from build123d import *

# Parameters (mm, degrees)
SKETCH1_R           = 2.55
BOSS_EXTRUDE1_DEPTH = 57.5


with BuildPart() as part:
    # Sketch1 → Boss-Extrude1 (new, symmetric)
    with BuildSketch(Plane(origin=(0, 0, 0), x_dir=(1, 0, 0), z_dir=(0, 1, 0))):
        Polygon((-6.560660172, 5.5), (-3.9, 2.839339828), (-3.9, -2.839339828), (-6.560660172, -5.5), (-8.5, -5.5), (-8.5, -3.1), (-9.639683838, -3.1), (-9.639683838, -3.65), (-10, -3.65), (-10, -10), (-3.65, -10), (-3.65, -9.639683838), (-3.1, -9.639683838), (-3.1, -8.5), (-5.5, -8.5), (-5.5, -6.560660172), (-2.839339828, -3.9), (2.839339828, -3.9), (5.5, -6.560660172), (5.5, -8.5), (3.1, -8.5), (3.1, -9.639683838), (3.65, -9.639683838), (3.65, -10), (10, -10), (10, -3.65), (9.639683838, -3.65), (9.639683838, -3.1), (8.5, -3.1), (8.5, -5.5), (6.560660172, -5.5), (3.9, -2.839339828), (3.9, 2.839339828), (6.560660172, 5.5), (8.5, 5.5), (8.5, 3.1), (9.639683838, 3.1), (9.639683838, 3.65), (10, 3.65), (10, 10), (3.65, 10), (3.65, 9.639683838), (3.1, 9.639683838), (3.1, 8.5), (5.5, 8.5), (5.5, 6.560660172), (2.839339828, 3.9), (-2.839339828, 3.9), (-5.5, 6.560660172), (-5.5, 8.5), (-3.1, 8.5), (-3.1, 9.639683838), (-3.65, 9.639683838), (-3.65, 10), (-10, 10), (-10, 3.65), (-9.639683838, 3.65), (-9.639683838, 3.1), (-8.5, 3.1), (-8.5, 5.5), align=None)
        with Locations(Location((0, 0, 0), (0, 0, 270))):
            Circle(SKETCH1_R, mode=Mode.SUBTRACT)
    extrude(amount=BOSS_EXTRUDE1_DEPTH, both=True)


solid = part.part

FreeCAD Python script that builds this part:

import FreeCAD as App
import Part
import Sketcher

doc = App.newDocument("Part")
params = doc.addObject("Spreadsheet::Sheet", "Params")
for row, (alias, value) in enumerate([
    ("sketch1_diameter", "5.1 mm"),
    ("sketch1_width", "2.4 mm"),
    ("sketch1_width2", "6.35 mm"),
    ("sketch1_width3", "0.55 mm"),
    ("pad1_length", "115 mm"),
], start=1):
    params.set(f"A{row}", alias)
    params.set(f"B{row}", "=" + value)
    params.setAlias(f"B{row}", alias)

body = doc.addObject("PartDesign::Body", "Body")

# Sketch on XZ plane
sketch1 = doc.addObject("Sketcher::SketchObject", "Sketch")
body.addObject(sketch1)
sketch1.AttachmentSupport = (doc.XZ_Plane, [""])
sketch1.MapMode = "FlatFace"
sketch1.addGeometry([
    Part.LineSegment(App.Vector(-6.56, -5.5, 0), App.Vector(-3.9, -2.84, 0)),  # 0
    Part.LineSegment(App.Vector(-3.9, -2.84, 0), App.Vector(-3.9, 2.84, 0)),  # 1
    Part.LineSegment(App.Vector(-3.9, 2.84, 0), App.Vector(-6.56, 5.5, 0)),  # 2
    Part.LineSegment(App.Vector(-6.56, 5.5, 0), App.Vector(-8.5, 5.5, 0)),  # 3
    Part.LineSegment(App.Vector(-8.5, 5.5, 0), App.Vector(-8.5, 3.1, 0)),  # 4
    Part.LineSegment(App.Vector(-8.5, 3.1, 0), App.Vector(-9.64, 3.1, 0)),  # 5
    Part.LineSegment(App.Vector(-9.64, 3.1, 0), App.Vector(-9.64, 3.65, 0)),  # 6
    Part.LineSegment(App.Vector(-9.64, 3.65, 0), App.Vector(-10, 3.65, 0)),  # 7
    Part.LineSegment(App.Vector(-10, 3.65, 0), App.Vector(-10, 10, 0)),  # 8
    Part.LineSegment(App.Vector(-10, 10, 0), App.Vector(-3.65, 10, 0)),  # 9
    Part.LineSegment(App.Vector(-3.65, 10, 0), App.Vector(-3.65, 9.64, 0)),  # 10
    Part.LineSegment(App.Vector(-3.65, 9.64, 0), App.Vector(-3.1, 9.64, 0)),  # 11
    Part.LineSegment(App.Vector(-3.1, 9.64, 0), App.Vector(-3.1, 8.5, 0)),  # 12
    Part.LineSegment(App.Vector(-3.1, 8.5, 0), App.Vector(-5.5, 8.5, 0)),  # 13
    Part.LineSegment(App.Vector(-5.5, 8.5, 0), App.Vector(-5.5, 6.56, 0)),  # 14
    Part.LineSegment(App.Vector(-5.5, 6.56, 0), App.Vector(-2.84, 3.9, 0)),  # 15
    Part.LineSegment(App.Vector(-2.84, 3.9, 0), App.Vector(2.84, 3.9, 0)),  # 16
    Part.LineSegment(App.Vector(2.84, 3.9, 0), App.Vector(5.5, 6.56, 0)),  # 17
    Part.LineSegment(App.Vector(5.5, 6.56, 0), App.Vector(5.5, 8.5, 0)),  # 18
    Part.LineSegment(App.Vector(5.5, 8.5, 0), App.Vector(3.1, 8.5, 0)),  # 19
    Part.LineSegment(App.Vector(3.1, 8.5, 0), App.Vector(3.1, 9.64, 0)),  # 20
    Part.LineSegment(App.Vector(3.1, 9.64, 0), App.Vector(3.65, 9.64, 0)),  # 21
    Part.LineSegment(App.Vector(3.65, 9.64, 0), App.Vector(3.65, 10, 0)),  # 22
    Part.LineSegment(App.Vector(3.65, 10, 0), App.Vector(10, 10, 0)),  # 23
    Part.LineSegment(App.Vector(10, 10, 0), App.Vector(10, 3.65, 0)),  # 24
    Part.LineSegment(App.Vector(10, 3.65, 0), App.Vector(9.64, 3.65, 0)),  # 25
    Part.LineSegment(App.Vector(9.64, 3.65, 0), App.Vector(9.64, 3.1, 0)),  # 26
    Part.LineSegment(App.Vector(9.64, 3.1, 0), App.Vector(8.5, 3.1, 0)),  # 27
    Part.LineSegment(App.Vector(8.5, 3.1, 0), App.Vector(8.5, 5.5, 0)),  # 28
    Part.LineSegment(App.Vector(8.5, 5.5, 0), App.Vector(6.56, 5.5, 0)),  # 29
    Part.LineSegment(App.Vector(6.56, 5.5, 0), App.Vector(3.9, 2.84, 0)),  # 30
    Part.LineSegment(App.Vector(3.9, 2.84, 0), App.Vector(3.9, -2.84, 0)),  # 31
    Part.LineSegment(App.Vector(3.9, -2.84, 0), App.Vector(6.56, -5.5, 0)),  # 32
    Part.LineSegment(App.Vector(6.56, -5.5, 0), App.Vector(8.5, -5.5, 0)),  # 33
    Part.LineSegment(App.Vector(8.5, -5.5, 0), App.Vector(8.5, -3.1, 0)),  # 34
    Part.LineSegment(App.Vector(8.5, -3.1, 0), App.Vector(9.64, -3.1, 0)),  # 35
    Part.LineSegment(App.Vector(9.64, -3.1, 0), App.Vector(9.64, -3.65, 0)),  # 36
    Part.LineSegment(App.Vector(9.64, -3.65, 0), App.Vector(10, -3.65, 0)),  # 37
    Part.LineSegment(App.Vector(10, -3.65, 0), App.Vector(10, -10, 0)),  # 38
    Part.LineSegment(App.Vector(10, -10, 0), App.Vector(3.65, -10, 0)),  # 39
    Part.LineSegment(App.Vector(3.65, -10, 0), App.Vector(3.65, -9.64, 0)),  # 40
    Part.LineSegment(App.Vector(3.65, -9.64, 0), App.Vector(3.1, -9.64, 0)),  # 41
    Part.LineSegment(App.Vector(3.1, -9.64, 0), App.Vector(3.1, -8.5, 0)),  # 42
    Part.LineSegment(App.Vector(3.1, -8.5, 0), App.Vector(5.5, -8.5, 0)),  # 43
    Part.LineSegment(App.Vector(5.5, -8.5, 0), App.Vector(5.5, -6.56, 0)),  # 44
    Part.LineSegment(App.Vector(5.5, -6.56, 0), App.Vector(2.84, -3.9, 0)),  # 45
    Part.LineSegment(App.Vector(2.84, -3.9, 0), App.Vector(-2.84, -3.9, 0)),  # 46
    Part.LineSegment(App.Vector(-2.84, -3.9, 0), App.Vector(-5.5, -6.56, 0)),  # 47
    Part.LineSegment(App.Vector(-5.5, -6.56, 0), App.Vector(-5.5, -8.5, 0)),  # 48
    Part.LineSegment(App.Vector(-5.5, -8.5, 0), App.Vector(-3.1, -8.5, 0)),  # 49
    Part.LineSegment(App.Vector(-3.1, -8.5, 0), App.Vector(-3.1, -9.64, 0)),  # 50
    Part.LineSegment(App.Vector(-3.1, -9.64, 0), App.Vector(-3.65, -9.64, 0)),  # 51
    Part.LineSegment(App.Vector(-3.65, -9.64, 0), App.Vector(-3.65, -10, 0)),  # 52
    Part.LineSegment(App.Vector(-3.65, -10, 0), App.Vector(-10, -10, 0)),  # 53
    Part.LineSegment(App.Vector(-10, -10, 0), App.Vector(-10, -3.65, 0)),  # 54
    Part.LineSegment(App.Vector(-10, -3.65, 0), App.Vector(-9.64, -3.65, 0)),  # 55
    Part.LineSegment(App.Vector(-9.64, -3.65, 0), App.Vector(-9.64, -3.1, 0)),  # 56
    Part.LineSegment(App.Vector(-9.64, -3.1, 0), App.Vector(-8.5, -3.1, 0)),  # 57
    Part.LineSegment(App.Vector(-8.5, -3.1, 0), App.Vector(-8.5, -5.5, 0)),  # 58
    Part.LineSegment(App.Vector(-8.5, -5.5, 0), App.Vector(-6.56, -5.5, 0)),  # 59
    Part.Circle(App.Vector(0, 0, 0), App.Vector(0, 0, 1), 2.55),  # 60
], False)
sketch1.addConstraint([
    Sketcher.Constraint("Coincident", 0, 2, 1, 1),
    Sketcher.Constraint("Coincident", 1, 2, 2, 1),
    Sketcher.Constraint("Coincident", 2, 2, 3, 1),
    Sketcher.Constraint("Coincident", 3, 2, 4, 1),
    Sketcher.Constraint("Coincident", 4, 2, 5, 1),
    Sketcher.Constraint("Coincident", 5, 2, 6, 1),
    Sketcher.Constraint("Coincident", 6, 2, 7, 1),
    Sketcher.Constraint("Coincident", 7, 2, 8, 1),
    Sketcher.Constraint("Coincident", 8, 2, 9, 1),
    Sketcher.Constraint("Coincident", 9, 2, 10, 1),
    Sketcher.Constraint("Coincident", 10, 2, 11, 1),
    Sketcher.Constraint("Coincident", 11, 2, 12, 1),
    Sketcher.Constraint("Coincident", 12, 2, 13, 1),
    Sketcher.Constraint("Coincident", 13, 2, 14, 1),
    Sketcher.Constraint("Coincident", 14, 2, 15, 1),
    Sketcher.Constraint("Coincident", 15, 2, 16, 1),
    Sketcher.Constraint("Coincident", 16, 2, 17, 1),
    Sketcher.Constraint("Coincident", 17, 2, 18, 1),
    Sketcher.Constraint("Coincident", 18, 2, 19, 1),
    Sketcher.Constraint("Coincident", 19, 2, 20, 1),
    Sketcher.Constraint("Coincident", 20, 2, 21, 1),
    Sketcher.Constraint("Coincident", 21, 2, 22, 1),
    Sketcher.Constraint("Coincident", 22, 2, 23, 1),
    Sketcher.Constraint("Coincident", 23, 2, 24, 1),
    Sketcher.Constraint("Coincident", 24, 2, 25, 1),
    Sketcher.Constraint("Coincident", 25, 2, 26, 1),
    Sketcher.Constraint("Coincident", 26, 2, 27, 1),
    Sketcher.Constraint("Coincident", 27, 2, 28, 1),
    Sketcher.Constraint("Coincident", 28, 2, 29, 1),
    Sketcher.Constraint("Coincident", 29, 2, 30, 1),
    Sketcher.Constraint("Coincident", 30, 2, 31, 1),
    Sketcher.Constraint("Coincident", 31, 2, 32, 1),
    Sketcher.Constraint("Coincident", 32, 2, 33, 1),
    Sketcher.Constraint("Coincident", 33, 2, 34, 1),
    Sketcher.Constraint("Coincident", 34, 2, 35, 1),
    Sketcher.Constraint("Coincident", 35, 2, 36, 1),
    Sketcher.Constraint("Coincident", 36, 2, 37, 1),
    Sketcher.Constraint("Coincident", 37, 2, 38, 1),
    Sketcher.Constraint("Coincident", 38, 2, 39, 1),
    Sketcher.Constraint("Coincident", 39, 2, 40, 1),
    Sketcher.Constraint("Coincident", 40, 2, 41, 1),
    Sketcher.Constraint("Coincident", 41, 2, 42, 1),
    Sketcher.Constraint("Coincident", 42, 2, 43, 1),
    Sketcher.Constraint("Coincident", 43, 2, 44, 1),
    Sketcher.Constraint("Coincident", 44, 2, 45, 1),
    Sketcher.Constraint("Coincident", 45, 2, 46, 1),
    Sketcher.Constraint("Coincident", 46, 2, 47, 1),
    Sketcher.Constraint("Coincident", 47, 2, 48, 1),
    Sketcher.Constraint("Coincident", 48, 2, 49, 1),
    Sketcher.Constraint("Coincident", 49, 2, 50, 1),
    Sketcher.Constraint("Coincident", 50, 2, 51, 1),
    Sketcher.Constraint("Coincident", 51, 2, 52, 1),
    Sketcher.Constraint("Coincident", 52, 2, 53, 1),
    Sketcher.Constraint("Coincident", 53, 2, 54, 1),
    Sketcher.Constraint("Coincident", 54, 2, 55, 1),
    Sketcher.Constraint("Coincident", 55, 2, 56, 1),
    Sketcher.Constraint("Coincident", 56, 2, 57, 1),
    Sketcher.Constraint("Coincident", 57, 2, 58, 1),
    Sketcher.Constraint("Coincident", 58, 2, 59, 1),
    Sketcher.Constraint("Coincident", 59, 2, 0, 1),
    Sketcher.Constraint("Vertical", 1),
    Sketcher.Constraint("Horizontal", 3),
    Sketcher.Constraint("Vertical", 4),
    Sketcher.Constraint("Horizontal", 5),
    Sketcher.Constraint("Vertical", 6),
    Sketcher.Constraint("Horizontal", 7),
    Sketcher.Constraint("Vertical", 8),
    Sketcher.Constraint("Horizontal", 9),
    Sketcher.Constraint("Vertical", 10),
    Sketcher.Constraint("Horizontal", 11),
    Sketcher.Constraint("Vertical", 12),
    Sketcher.Constraint("Horizontal", 13),
    Sketcher.Constraint("Vertical", 14),
    Sketcher.Constraint("Horizontal", 16),
    Sketcher.Constraint("Vertical", 18),
    Sketcher.Constraint("Horizontal", 19),
    Sketcher.Constraint("Vertical", 20),
    Sketcher.Constraint("Horizontal", 21),
    Sketcher.Constraint("Vertical", 22),
    Sketcher.Constraint("Horizontal", 23),
    Sketcher.Constraint("Vertical", 24),
    Sketcher.Constraint("Horizontal", 25),
    Sketcher.Constraint("Vertical", 26),
    Sketcher.Constraint("Horizontal", 27),
    Sketcher.Constraint("Vertical", 28),
    Sketcher.Constraint("Horizontal", 29),
    Sketcher.Constraint("Vertical", 31),
    Sketcher.Constraint("Horizontal", 33),
    Sketcher.Constraint("Vertical", 34),
    Sketcher.Constraint("Horizontal", 35),
    Sketcher.Constraint("Vertical", 36),
    Sketcher.Constraint("Horizontal", 37),
    Sketcher.Constraint("Vertical", 38),
    Sketcher.Constraint("Horizontal", 39),
    Sketcher.Constraint("Vertical", 40),
    Sketcher.Constraint("Horizontal", 41),
    Sketcher.Constraint("Vertical", 42),
    Sketcher.Constraint("Horizontal", 43),
    Sketcher.Constraint("Vertical", 44),
    Sketcher.Constraint("Horizontal", 46),
    Sketcher.Constraint("Vertical", 48),
    Sketcher.Constraint("Horizontal", 49),
    Sketcher.Constraint("Vertical", 50),
    Sketcher.Constraint("Horizontal", 51),
    Sketcher.Constraint("Vertical", 52),
    Sketcher.Constraint("Horizontal", 53),
    Sketcher.Constraint("Vertical", 54),
    Sketcher.Constraint("Horizontal", 55),
    Sketcher.Constraint("Vertical", 56),
    Sketcher.Constraint("Horizontal", 57),
    Sketcher.Constraint("Vertical", 58),
    Sketcher.Constraint("Horizontal", 59),
    Sketcher.Constraint("Coincident", 60, 3, -1, 1),
    Sketcher.Constraint("Symmetric", 0, 2, 30, 2, -1, 1),
    Sketcher.Constraint("Symmetric", 2, 2, 32, 2, -1, 1),
    Sketcher.Constraint("Symmetric", 4, 2, 34, 2, -1, 1),
    Sketcher.Constraint("Symmetric", 6, 2, 36, 2, -1, 1),
    Sketcher.Constraint("Symmetric", 8, 2, 38, 2, -1, 1),
    Sketcher.Constraint("Symmetric", 10, 2, 40, 2, -1, 1),
    Sketcher.Constraint("Symmetric", 12, 2, 42, 2, -1, 1),
    Sketcher.Constraint("Symmetric", 14, 2, 44, 2, -1, 1),
    Sketcher.Constraint("Symmetric", 15, 2, 45, 2, -1, 1),
    Sketcher.Constraint("Symmetric", 17, 2, 47, 2, -1, 1),
    Sketcher.Constraint("Symmetric", 19, 2, 49, 2, -1, 1),
    Sketcher.Constraint("Symmetric", 21, 2, 51, 2, -1, 1),
    Sketcher.Constraint("Symmetric", 23, 2, 53, 2, -1, 1),
    Sketcher.Constraint("Symmetric", 25, 2, 55, 2, -1, 1),
    Sketcher.Constraint("Symmetric", 27, 2, 57, 2, -1, 1),
    Sketcher.Constraint("Symmetric", 29, 2, 59, 2, -1, 1),
    Sketcher.Constraint("Symmetric", 14, 2, 17, 2, -2),
    Sketcher.Constraint("Symmetric", 12, 2, 19, 2, -2),
    Sketcher.Constraint("Symmetric", 10, 2, 21, 2, -2),
    Sketcher.Constraint("Symmetric", 8, 2, 23, 2, -2),
    Sketcher.Constraint("Symmetric", 6, 2, 25, 2, -2),
    Sketcher.Constraint("Symmetric", 4, 2, 27, 2, -2),
    Sketcher.Constraint("Symmetric", 2, 2, 29, 2, -2),
    Sketcher.Constraint("Perpendicular", 0, 2),
    Sketcher.Constraint("Parallel", 2, 15),
    Sketcher.Constraint("Perpendicular", 15, 17),
    Sketcher.Constraint("Perpendicular", 30, 32),
    Sketcher.Constraint("Perpendicular", 45, 47),
    Sketcher.Constraint("Horizontal", 1, 2, 30, 2),
    Sketcher.Constraint("Equal", 46, 1),
    Sketcher.Constraint("Equal", 49, 4),
    Sketcher.Constraint("Equal", 51, 6),
    Sketcher.Constraint("Equal", 53, 8),
    Sketcher.Constraint("Equal", 55, 10),
    Sketcher.Constraint("Equal", 57, 12),
    Sketcher.Constraint("Equal", 59, 14),
    Sketcher.Constraint("Equal", 2, 15),
    Sketcher.Constraint("Diameter", 60, 5.1),
    Sketcher.Constraint("DistanceX", 13, 2, 13, 1, 2.4),
    Sketcher.Constraint("DistanceX", 7, 2, -1, 1, 10.0),
    Sketcher.Constraint("DistanceX", 9, 1, 9, 2, 6.35),
    Sketcher.Constraint("DistanceX", 11, 1, 11, 2, 0.55),
    Sketcher.Constraint("DistanceX", 0, 2, -1, 1, 3.9),
    Sketcher.Constraint("DistanceX", 3, 2, -1, 1, 8.5),
    Sketcher.Constraint("DistanceX", 3, 2, 3, 1, 1.93934),
    Sketcher.Constraint("DistanceX", 5, 2, 5, 1, 1.139684),
])
sketch1.setExpression("Constraints[150]", "Params.sketch1_diameter")
sketch1.setExpression("Constraints[151]", "Params.sketch1_width")
sketch1.setExpression("Constraints[153]", "Params.sketch1_width2")
sketch1.setExpression("Constraints[154]", "Params.sketch1_width3")
pad1 = doc.addObject("PartDesign::Pad", "Pad")
body.addObject(pad1)
pad1.Profile = sketch1
pad1.setExpression("Length", "Params.pad1_length")
pad1.Midplane = True

doc.recompute()
